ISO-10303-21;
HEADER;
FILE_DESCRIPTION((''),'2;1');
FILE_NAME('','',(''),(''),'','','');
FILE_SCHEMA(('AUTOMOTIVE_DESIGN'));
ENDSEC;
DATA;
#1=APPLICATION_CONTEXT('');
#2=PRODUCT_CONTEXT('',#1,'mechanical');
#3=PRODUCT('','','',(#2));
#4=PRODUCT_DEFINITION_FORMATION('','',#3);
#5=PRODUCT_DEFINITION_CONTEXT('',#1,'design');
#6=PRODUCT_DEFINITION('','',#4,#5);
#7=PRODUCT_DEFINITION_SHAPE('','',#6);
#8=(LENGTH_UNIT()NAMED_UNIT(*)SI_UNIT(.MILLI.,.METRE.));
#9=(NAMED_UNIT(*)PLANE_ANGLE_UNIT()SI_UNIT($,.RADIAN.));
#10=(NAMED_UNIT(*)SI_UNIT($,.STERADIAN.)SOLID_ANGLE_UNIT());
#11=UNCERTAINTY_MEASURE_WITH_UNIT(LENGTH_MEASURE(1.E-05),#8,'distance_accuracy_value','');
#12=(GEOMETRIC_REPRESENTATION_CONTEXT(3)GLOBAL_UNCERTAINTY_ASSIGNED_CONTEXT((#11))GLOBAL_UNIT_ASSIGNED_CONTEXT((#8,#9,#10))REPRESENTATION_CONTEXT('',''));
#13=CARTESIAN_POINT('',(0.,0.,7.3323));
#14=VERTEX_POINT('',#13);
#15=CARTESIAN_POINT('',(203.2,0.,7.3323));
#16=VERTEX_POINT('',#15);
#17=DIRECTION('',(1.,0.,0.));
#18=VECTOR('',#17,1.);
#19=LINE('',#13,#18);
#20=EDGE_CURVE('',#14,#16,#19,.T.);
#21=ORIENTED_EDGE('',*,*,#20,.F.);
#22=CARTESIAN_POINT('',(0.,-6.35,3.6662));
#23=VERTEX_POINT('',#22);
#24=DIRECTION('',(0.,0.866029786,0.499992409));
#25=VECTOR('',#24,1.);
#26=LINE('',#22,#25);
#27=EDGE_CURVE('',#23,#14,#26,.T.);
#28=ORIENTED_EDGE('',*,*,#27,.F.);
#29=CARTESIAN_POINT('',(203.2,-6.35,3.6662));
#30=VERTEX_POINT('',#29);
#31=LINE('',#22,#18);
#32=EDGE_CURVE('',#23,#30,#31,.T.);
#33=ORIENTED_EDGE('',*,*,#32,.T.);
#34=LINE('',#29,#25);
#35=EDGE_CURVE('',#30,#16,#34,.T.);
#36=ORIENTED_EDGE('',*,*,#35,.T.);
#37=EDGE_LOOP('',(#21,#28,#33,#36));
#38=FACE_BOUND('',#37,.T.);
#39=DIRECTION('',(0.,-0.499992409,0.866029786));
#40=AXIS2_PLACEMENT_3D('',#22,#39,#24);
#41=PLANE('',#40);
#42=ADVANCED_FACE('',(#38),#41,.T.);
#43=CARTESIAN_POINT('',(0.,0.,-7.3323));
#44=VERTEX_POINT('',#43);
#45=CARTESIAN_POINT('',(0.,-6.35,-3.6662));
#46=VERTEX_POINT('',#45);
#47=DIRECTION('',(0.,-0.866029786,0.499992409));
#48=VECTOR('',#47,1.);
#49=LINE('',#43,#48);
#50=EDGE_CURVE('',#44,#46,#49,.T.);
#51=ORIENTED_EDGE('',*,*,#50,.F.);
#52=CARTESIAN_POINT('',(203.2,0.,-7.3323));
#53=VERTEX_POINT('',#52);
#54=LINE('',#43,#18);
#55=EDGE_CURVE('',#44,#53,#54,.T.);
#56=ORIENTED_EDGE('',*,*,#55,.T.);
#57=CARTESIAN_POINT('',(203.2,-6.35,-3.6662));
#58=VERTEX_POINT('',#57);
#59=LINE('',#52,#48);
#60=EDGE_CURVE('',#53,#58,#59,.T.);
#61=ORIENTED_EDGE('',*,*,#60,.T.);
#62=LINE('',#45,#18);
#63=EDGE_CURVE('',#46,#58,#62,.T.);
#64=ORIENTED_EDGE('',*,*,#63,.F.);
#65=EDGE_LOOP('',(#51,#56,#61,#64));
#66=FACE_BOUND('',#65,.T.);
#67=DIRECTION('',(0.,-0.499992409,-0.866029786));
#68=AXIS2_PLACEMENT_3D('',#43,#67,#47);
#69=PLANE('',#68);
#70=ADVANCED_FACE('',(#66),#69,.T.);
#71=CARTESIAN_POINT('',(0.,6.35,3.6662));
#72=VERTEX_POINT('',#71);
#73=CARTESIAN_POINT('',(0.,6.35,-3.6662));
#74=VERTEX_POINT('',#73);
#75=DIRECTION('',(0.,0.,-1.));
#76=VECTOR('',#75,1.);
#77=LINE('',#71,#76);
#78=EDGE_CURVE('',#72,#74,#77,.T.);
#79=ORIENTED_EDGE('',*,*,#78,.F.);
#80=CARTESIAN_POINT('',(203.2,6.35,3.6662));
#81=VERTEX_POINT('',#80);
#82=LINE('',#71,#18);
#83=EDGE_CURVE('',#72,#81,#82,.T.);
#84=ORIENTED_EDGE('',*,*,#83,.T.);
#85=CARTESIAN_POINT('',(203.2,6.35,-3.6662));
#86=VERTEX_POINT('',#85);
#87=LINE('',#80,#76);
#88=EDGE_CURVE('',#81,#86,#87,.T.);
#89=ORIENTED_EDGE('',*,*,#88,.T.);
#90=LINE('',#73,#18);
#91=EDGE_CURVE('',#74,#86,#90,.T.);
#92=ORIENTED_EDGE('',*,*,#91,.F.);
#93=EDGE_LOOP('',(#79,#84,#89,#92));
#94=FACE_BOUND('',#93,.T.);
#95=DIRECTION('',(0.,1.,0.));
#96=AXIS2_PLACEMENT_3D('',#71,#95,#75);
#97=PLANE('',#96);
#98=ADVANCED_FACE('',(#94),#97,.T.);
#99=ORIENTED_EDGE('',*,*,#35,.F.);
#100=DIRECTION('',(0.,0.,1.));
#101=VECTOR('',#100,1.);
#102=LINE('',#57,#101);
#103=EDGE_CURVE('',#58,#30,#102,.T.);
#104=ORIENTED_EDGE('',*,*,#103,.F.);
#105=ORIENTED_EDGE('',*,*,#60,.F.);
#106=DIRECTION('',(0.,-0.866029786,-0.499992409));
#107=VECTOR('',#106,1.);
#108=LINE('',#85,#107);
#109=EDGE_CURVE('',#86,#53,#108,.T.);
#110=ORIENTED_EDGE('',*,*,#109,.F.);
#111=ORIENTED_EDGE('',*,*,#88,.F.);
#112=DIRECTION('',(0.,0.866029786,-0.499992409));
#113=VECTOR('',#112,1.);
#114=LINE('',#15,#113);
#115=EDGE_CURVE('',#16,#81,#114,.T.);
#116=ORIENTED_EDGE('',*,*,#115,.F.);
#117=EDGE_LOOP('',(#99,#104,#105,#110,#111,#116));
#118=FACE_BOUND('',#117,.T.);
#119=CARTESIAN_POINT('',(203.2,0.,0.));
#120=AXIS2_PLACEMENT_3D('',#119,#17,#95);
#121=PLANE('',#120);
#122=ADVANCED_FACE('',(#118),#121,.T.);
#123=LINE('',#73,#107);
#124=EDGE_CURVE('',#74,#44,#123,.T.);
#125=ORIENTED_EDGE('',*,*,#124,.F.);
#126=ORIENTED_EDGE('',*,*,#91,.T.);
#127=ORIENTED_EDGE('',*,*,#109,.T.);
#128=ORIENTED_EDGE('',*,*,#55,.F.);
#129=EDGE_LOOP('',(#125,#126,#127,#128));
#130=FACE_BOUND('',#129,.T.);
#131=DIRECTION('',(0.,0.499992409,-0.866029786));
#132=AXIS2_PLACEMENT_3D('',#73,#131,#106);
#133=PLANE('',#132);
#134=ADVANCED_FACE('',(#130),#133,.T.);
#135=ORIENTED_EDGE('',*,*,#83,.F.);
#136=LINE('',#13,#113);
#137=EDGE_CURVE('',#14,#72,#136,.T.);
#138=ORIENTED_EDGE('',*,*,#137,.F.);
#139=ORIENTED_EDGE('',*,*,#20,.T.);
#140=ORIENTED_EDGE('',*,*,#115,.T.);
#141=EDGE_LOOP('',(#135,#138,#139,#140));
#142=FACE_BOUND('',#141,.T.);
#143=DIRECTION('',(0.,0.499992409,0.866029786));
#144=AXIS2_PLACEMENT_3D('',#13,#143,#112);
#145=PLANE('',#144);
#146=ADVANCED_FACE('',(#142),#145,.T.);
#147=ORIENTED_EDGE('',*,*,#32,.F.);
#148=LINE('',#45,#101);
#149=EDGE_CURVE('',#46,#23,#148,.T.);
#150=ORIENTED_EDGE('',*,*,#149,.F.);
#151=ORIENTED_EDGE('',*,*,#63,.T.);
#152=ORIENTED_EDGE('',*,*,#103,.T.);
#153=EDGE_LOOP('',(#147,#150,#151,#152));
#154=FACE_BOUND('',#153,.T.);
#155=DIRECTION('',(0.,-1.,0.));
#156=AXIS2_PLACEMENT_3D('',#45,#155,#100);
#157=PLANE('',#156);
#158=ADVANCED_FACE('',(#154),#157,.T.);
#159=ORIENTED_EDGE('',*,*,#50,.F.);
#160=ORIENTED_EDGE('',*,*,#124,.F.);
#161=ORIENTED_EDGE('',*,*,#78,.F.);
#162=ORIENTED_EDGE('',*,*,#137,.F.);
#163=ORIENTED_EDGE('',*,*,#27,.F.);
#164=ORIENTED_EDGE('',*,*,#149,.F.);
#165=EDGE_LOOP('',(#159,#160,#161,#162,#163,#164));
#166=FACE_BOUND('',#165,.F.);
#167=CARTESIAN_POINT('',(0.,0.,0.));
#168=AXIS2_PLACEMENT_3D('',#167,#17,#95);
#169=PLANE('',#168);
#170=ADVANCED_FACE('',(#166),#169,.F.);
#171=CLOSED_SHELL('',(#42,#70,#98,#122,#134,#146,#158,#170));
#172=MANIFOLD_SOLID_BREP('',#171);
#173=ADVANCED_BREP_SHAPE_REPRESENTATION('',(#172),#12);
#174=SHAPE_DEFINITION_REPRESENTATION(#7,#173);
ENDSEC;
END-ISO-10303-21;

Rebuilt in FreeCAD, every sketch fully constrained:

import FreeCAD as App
import Part
import Sketcher

V = App.Vector
Q = App.Units.Quantity


def add_polygon(sketch, points):
    """Adds a closed chain of lines whose ends are joined by coincident constraints."""
    first, n = sketch.GeometryCount, len(points)
    for a, b in zip(points, points[1:] + points[:1]):
        sketch.addGeometry(Part.LineSegment(App.Vector(*a, 0), App.Vector(*b, 0)), False)
    for i in range(n):
        sketch.addConstraint(Sketcher.Constraint("Coincident", first + i, 2, first + (i + 1) % n, 1))

doc = App.newDocument("Part")
body = doc.addObject("PartDesign::Body", "Body")

sketch1 = body.newObject("Sketcher::SketchObject", "Sketch")
sketch1.AttachmentSupport = (doc.getObject("YZ_Plane"), [""])
sketch1.MapMode = "FlatFace"
add_polygon(sketch1, [(0, -7), (6, -4), (6, 4), (0, 7), (-6, 4), (-6, -4)])
sketch1.addConstraint([
    Sketcher.Constraint("Vertical", 1),
    Sketcher.Constraint("Vertical", 4),
    Sketcher.Constraint("Symmetric", 0, 2, 3, 2, -1, 1),
    Sketcher.Constraint("Symmetric", 2, 2, 5, 2, -1, 1),
    Sketcher.Constraint("PointOnObject", 2, 2, -2),
    Sketcher.Constraint("Parallel", 2, 5),
    Sketcher.Constraint("Horizontal", 1, 2, 3, 2),
    Sketcher.Constraint("DistanceX", -1, 1, 0, 2, Q("0.25 in")),
    Sketcher.Constraint("Angle", 0, Q("29.9995 deg")),
    Sketcher.Constraint("DistanceY", 0, 2, 2, 2, Q("0.433 in")),
])
pad1 = body.newObject("PartDesign::Pad", "Pad")
pad1.Profile = sketch1
pad1.Length = Q("8 in")

doc.recompute()
